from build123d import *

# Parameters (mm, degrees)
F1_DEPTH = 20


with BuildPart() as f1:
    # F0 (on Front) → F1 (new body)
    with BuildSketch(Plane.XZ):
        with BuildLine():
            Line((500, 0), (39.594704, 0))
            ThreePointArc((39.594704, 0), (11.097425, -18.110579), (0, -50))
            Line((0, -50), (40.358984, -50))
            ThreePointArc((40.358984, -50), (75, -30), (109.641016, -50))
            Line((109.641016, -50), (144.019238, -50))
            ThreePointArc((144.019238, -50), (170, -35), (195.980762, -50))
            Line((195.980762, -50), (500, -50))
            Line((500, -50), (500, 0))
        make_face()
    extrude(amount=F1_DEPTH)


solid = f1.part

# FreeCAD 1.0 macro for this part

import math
import FreeCAD as App
import Part
import Sketcher

V = App.Vector
Q = App.Units.Quantity

doc = App.newDocument("Part")
body = doc.addObject("PartDesign::Body", "Body")

sketch1 = body.newObject("Sketcher::SketchObject", "Sketch")
sketch1.AttachmentSupport = (doc.getObject("XZ_Plane"), [""])
sketch1.MapMode = "FlatFace"
sketch1.addGeometry([
    Part.LineSegment(V(500, 0, 0), V(40, 0, 0)),
    Part.ArcOfCircle(Part.Circle(V(51, -50, 0), V(0, 0, 1), 51), math.radians(103), math.radians(180)),
    Part.LineSegment(V(0, -50, 0), V(40, -50, 0)),
    Part.ArcOfCircle(Part.Circle(V(75, -70, 0), V(0, 0, 1), 40), math.radians(30), math.radians(150)),
    Part.LineSegment(V(110, -50, 0), V(144, -50, 0)),
    Part.ArcOfCircle(Part.Circle(V(170, -65, 0), V(0, 0, 1), 30), math.radians(30), math.radians(150)),
    Part.LineSegment(V(196, -50, 0), V(500, -50, 0)),
    Part.LineSegment(V(500, -50, 0), V(500, 0, 0)),
], False)
sketch1.addConstraint([
    Sketcher.Constraint("Coincident", 0, 2, 1, 1),
    Sketcher.Constraint("Coincident", 1, 2, 2, 1),
    Sketcher.Constraint("Coincident", 2, 2, 3, 2),
    Sketcher.Constraint("Coincident", 3, 1, 4, 1),
    Sketcher.Constraint("Coincident", 4, 2, 5, 2),
    Sketcher.Constraint("Coincident", 5, 1, 6, 1),
    Sketcher.Constraint("Coincident", 6, 2, 7, 1),
    Sketcher.Constraint("Coincident", 7, 2, 0, 1),
    Sketcher.Constraint("Horizontal", 0),
    Sketcher.Constraint("Horizontal", 2),
    Sketcher.Constraint("Horizontal", 4),
    Sketcher.Constraint("Horizontal", 6),
    Sketcher.Constraint("Vertical", 7),
    Sketcher.Constraint("PointOnObject", 0, 2, -1),
    Sketcher.Constraint("PointOnObject", 1, 2, -2),
    Sketcher.Constraint("Horizontal", 2, 2, 3, 1),
    Sketcher.Constraint("Horizontal", 4, 2, 5, 1),
    Sketcher.Constraint("Radius", 3, Q("40 mm")),
    Sketcher.Constraint("Radius", 5, Q("30 mm")),
    Sketcher.Constraint("DistanceY", 7, 1, 7, 2, Q("50 mm")),
    Sketcher.Constraint("DistanceY", 1, 3, -1, 1, Q("49.999999 mm")),
    Sketcher.Constraint("DistanceX", -1, 1, 3, 3, Q("75 mm")),
    Sketcher.Constraint("DistanceY", 3, 3, -1, 1, Q("70 mm")),
    Sketcher.Constraint("DistanceX", -1, 1, 5, 3, Q("170 mm")),
    Sketcher.Constraint("DistanceY", 5, 3, -1, 1, Q("65 mm")),
    Sketcher.Constraint("DistanceX", -1, 1, 6, 2, Q("500 mm")),
    Sketcher.Constraint("Radius", 1, Q("51.367229 mm")),
])
pad1 = body.newObject("PartDesign::Pad", "Pad")
pad1.Profile = sketch1
pad1.Length = 20

doc.recompute()
